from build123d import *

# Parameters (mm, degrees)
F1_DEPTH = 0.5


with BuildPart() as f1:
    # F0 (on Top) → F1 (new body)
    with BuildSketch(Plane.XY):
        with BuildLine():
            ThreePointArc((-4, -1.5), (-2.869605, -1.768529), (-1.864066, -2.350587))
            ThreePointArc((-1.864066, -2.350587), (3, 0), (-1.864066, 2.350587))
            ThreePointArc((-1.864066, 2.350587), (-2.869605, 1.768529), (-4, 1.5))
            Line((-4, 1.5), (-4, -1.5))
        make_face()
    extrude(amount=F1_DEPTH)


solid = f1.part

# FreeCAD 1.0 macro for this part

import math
import FreeCAD as App
import Part
import Sketcher
Q = App.Units.Quantity

doc = App.newDocument("Part")
body = doc.addObject("PartDesign::Body", "Body")

# Sketch on XY plane
sketch1 = body.newObject("Sketcher::SketchObject", "Sketch")
sketch1.AttachmentSupport = (doc.getObject("XY_Plane"), [""])
sketch1.MapMode = "FlatFace"
sketch1.addGeometry([
    Part.ArcOfCircle(Part.Circle(App.Vector(-4.3, -5.5, 0), App.Vector(0, 0, 1), 4), math.radians(52), math.radians(85)),
    Part.ArcOfCircle(Part.Circle(App.Vector(0, 0, 0), App.Vector(0, 0, 1), 3), math.radians(-128), math.radians(128)),
    Part.ArcOfCircle(Part.Circle(App.Vector(-4.3, 5.5, 0), App.Vector(0, 0, 1), 4), math.radians(-85), math.radians(-52)),
    Part.LineSegment(App.Vector(-4, 1.5, 0), App.Vector(-4, -1.5, 0)),
], False)
sketch1.addConstraint([
    Sketcher.Constraint("Tangent", 0, 1, 1, 1),
    Sketcher.Constraint("Tangent", 1, 2, 2, 2),
    Sketcher.Constraint("Coincident", 2, 1, 3, 1),
    Sketcher.Constraint("Coincident", 3, 2, 0, 2),
    Sketcher.Constraint("Vertical", 3),
    Sketcher.Constraint("Coincident", 1, 3, -1, 1),
    Sketcher.Constraint("Equal", 0, 2),
    Sketcher.Constraint("Vertical", 0, 3, 2, 3),
    Sketcher.Constraint("Radius", 0, Q("4 mm")),
    Sketcher.Constraint("Radius", 1, Q("3 mm")),
    Sketcher.Constraint("DistanceY", 3, 2, 3, 1, Q("3 mm")),
    Sketcher.Constraint("DistanceX", 2, 1, -1, 1, Q("4 mm")),
])
pad1 = body.newObject("PartDesign::Pad", "Pad")
pad1.Profile = sketch1
pad1.Length = 0.5

doc.recompute()
